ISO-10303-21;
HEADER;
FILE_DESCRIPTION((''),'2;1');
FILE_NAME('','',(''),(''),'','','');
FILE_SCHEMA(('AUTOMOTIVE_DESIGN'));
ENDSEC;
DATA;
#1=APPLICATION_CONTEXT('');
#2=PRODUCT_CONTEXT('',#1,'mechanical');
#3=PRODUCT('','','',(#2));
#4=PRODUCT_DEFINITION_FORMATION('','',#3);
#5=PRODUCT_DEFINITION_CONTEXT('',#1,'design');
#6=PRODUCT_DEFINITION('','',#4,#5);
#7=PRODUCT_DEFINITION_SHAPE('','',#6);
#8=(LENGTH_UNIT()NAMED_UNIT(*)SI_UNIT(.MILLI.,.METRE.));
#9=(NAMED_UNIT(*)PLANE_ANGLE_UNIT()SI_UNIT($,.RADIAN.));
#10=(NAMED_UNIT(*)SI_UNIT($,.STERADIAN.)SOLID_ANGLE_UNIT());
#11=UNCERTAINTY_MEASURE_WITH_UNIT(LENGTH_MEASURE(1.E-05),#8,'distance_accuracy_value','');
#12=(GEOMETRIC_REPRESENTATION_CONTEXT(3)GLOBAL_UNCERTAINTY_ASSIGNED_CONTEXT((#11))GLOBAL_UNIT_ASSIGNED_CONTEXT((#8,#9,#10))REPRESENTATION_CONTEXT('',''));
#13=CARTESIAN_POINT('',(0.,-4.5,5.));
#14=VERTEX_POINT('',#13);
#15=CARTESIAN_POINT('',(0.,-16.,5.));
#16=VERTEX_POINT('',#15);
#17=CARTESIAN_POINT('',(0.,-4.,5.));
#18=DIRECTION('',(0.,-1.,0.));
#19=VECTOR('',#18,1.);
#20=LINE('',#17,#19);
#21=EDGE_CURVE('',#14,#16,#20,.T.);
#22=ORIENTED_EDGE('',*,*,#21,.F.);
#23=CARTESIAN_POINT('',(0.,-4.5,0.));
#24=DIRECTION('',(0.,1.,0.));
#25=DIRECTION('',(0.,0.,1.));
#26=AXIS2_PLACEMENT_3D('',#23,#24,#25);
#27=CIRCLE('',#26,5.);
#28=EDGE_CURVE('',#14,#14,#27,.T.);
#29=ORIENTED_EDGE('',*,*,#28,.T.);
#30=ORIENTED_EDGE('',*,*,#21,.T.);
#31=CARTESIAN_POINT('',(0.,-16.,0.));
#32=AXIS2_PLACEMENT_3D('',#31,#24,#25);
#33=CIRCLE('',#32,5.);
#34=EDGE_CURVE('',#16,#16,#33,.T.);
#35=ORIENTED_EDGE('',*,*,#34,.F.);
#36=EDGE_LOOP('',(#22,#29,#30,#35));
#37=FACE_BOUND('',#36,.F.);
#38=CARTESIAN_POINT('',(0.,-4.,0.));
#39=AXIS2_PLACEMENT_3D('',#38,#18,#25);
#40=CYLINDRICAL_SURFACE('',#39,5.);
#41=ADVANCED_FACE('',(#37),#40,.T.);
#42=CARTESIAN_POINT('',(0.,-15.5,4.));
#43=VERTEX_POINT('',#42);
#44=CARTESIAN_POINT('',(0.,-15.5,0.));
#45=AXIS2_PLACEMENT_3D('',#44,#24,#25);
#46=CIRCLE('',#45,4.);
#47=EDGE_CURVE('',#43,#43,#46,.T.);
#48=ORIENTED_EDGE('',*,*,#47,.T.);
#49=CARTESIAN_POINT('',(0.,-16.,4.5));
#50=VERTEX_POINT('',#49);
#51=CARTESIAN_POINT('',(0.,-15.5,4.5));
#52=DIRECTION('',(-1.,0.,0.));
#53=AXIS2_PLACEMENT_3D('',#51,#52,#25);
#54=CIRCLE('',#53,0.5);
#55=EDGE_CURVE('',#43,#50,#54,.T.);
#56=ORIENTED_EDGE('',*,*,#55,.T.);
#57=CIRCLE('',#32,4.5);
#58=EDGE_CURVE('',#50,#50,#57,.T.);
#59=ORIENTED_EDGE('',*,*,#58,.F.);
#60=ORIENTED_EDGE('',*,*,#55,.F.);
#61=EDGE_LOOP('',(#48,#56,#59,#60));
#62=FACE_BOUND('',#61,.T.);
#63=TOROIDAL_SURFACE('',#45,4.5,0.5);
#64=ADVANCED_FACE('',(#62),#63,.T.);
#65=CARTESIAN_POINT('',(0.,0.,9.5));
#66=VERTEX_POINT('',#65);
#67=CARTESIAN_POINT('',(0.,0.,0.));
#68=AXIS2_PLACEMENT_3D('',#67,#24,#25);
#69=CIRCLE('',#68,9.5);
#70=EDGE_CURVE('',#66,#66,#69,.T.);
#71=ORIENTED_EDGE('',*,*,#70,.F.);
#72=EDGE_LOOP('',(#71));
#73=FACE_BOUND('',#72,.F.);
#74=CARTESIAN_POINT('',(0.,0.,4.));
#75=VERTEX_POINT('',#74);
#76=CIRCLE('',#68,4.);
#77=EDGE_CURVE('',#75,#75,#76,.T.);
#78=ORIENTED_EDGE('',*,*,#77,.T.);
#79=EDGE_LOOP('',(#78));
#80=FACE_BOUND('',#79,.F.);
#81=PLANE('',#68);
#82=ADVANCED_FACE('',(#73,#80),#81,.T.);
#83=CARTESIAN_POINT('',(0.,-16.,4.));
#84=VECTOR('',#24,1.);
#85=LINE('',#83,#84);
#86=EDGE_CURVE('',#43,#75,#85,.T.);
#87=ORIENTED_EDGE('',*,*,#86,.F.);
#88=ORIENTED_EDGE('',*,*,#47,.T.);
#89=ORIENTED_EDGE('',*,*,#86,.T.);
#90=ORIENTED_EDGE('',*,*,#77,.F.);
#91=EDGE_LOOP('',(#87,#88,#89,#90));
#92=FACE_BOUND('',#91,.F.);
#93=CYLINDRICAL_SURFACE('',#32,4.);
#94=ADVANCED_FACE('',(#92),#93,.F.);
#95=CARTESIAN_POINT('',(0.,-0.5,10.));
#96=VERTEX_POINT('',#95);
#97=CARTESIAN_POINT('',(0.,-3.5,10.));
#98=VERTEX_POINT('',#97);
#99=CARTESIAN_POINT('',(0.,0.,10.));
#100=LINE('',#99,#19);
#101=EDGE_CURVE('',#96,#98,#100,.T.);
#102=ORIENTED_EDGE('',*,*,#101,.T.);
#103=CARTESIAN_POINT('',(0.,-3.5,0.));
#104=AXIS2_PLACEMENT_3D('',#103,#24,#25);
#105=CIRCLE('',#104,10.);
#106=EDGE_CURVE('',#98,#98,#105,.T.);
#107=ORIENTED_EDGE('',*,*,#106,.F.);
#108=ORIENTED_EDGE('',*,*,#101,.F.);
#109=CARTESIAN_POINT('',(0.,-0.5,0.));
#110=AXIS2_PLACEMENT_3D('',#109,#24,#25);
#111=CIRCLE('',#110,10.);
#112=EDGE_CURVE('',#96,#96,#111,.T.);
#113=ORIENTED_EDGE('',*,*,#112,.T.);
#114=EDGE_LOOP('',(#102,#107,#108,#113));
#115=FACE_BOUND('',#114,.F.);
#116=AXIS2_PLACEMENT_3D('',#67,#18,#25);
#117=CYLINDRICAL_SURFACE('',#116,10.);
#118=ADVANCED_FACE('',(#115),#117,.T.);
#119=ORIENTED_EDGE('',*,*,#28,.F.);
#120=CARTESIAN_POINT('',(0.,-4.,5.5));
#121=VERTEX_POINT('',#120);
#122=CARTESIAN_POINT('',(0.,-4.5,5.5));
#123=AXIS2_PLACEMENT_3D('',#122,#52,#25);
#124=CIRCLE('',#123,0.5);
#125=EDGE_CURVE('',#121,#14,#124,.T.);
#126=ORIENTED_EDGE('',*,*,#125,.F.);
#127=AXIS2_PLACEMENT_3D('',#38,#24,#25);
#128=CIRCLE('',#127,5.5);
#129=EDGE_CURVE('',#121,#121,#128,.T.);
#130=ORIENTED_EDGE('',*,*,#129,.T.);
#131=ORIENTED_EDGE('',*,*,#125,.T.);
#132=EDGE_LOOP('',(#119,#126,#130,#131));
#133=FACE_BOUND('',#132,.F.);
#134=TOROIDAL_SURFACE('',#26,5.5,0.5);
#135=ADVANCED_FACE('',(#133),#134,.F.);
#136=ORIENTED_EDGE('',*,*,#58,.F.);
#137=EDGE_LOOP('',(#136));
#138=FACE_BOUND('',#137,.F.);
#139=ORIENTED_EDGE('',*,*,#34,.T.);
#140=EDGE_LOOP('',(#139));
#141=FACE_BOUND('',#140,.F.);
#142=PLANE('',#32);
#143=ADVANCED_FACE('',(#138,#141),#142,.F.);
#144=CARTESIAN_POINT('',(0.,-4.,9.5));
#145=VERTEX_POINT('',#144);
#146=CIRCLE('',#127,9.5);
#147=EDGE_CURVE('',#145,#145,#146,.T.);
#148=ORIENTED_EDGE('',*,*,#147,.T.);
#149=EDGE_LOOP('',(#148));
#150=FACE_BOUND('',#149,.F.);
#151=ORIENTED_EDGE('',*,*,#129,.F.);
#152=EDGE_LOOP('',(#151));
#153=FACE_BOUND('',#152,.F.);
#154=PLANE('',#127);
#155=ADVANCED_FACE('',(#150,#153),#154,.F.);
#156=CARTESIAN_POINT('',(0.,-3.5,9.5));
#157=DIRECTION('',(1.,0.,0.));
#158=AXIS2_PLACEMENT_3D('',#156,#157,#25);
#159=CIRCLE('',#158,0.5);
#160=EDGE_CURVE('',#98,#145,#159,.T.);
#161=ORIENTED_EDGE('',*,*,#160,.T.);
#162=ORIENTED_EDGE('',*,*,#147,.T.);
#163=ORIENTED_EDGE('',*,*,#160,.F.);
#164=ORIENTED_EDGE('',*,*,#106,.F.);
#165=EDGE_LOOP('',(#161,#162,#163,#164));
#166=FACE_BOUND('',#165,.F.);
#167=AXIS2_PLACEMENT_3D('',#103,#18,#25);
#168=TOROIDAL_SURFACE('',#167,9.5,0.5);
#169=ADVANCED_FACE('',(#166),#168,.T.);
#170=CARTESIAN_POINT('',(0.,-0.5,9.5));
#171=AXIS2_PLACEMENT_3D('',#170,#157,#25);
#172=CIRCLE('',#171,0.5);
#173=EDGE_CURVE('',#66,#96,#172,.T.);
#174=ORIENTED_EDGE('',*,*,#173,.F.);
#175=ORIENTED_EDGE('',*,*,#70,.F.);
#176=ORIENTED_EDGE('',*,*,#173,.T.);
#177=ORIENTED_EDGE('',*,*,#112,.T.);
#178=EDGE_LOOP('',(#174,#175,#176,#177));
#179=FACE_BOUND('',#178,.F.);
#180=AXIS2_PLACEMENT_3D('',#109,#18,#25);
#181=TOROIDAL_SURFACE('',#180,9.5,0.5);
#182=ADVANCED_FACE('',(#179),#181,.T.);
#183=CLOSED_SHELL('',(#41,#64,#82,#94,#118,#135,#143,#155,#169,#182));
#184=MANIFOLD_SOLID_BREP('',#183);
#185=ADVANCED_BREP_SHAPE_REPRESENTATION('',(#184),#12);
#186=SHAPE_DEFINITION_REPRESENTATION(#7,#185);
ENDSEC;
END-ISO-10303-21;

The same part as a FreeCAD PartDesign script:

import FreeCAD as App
import Part
import Sketcher
Q = App.Units.Quantity


def edges_at(feature, points):
    """Names of the edges that pass closest to the given points."""
    edges = feature.Shape.Edges
    near = lambda p: min(range(len(edges)), key=lambda i: edges[i].distToShape(Part.Vertex(*p))[0])
    return sorted({f"Edge{near(p) + 1}" for p in points})


def add_polygon(sketch, points):
    """Adds a closed chain of lines whose ends are joined by coincident constraints."""
    first, n = sketch.GeometryCount, len(points)
    for a, b in zip(points, points[1:] + points[:1]):
        sketch.addGeometry(Part.LineSegment(App.Vector(*a, 0), App.Vector(*b, 0)), False)
    for i in range(n):
        sketch.addConstraint(Sketcher.Constraint("Coincident", first + i, 2, first + (i + 1) % n, 1))

doc = App.newDocument("Part")
params = doc.addObject("Spreadsheet::Sheet", "Params")
for row, (alias, value) in enumerate([
    ("sketch1_width", "16 mm"),
    ("sketch1_width2", "4 mm"),
    ("sketch1_height", "6 mm"),
    ("sketch1_height2", "5 mm"),
    ("revolution_angle", "360 deg"),
    ("fillet_radius", "0.5 mm"),
], start=1):
    params.set(f"A{row}", alias)
    params.set(f"B{row}", "=" + value)
    params.setAlias(f"B{row}", alias)

body = doc.addObject("PartDesign::Body", "Body")

# Sketch on YZ plane
sketch1 = body.newObject("Sketcher::SketchObject", "Sketch")
sketch1.AttachmentSupport = (doc.getObject("YZ_Plane"), [""])
sketch1.MapMode = "FlatFace"
add_polygon(sketch1, [(-16, 4), (0, 4), (0, 10), (-4, 10), (-4, 5), (-16, 5)])  # lines 0-5
sketch1.addConstraint([
    Sketcher.Constraint("Horizontal", 0),
    Sketcher.Constraint("Vertical", 1),
    Sketcher.Constraint("Horizontal", 2),
    Sketcher.Constraint("Vertical", 3),
    Sketcher.Constraint("Horizontal", 4),
    Sketcher.Constraint("Vertical", 5),
    Sketcher.Constraint("PointOnObject", 0, 2, -2),
    Sketcher.Constraint("DistanceX", 0, 1, 0, 2, Q("16 mm")),
    Sketcher.Constraint("DistanceX", 2, 2, 2, 1, Q("4 mm")),
    Sketcher.Constraint("DistanceY", 1, 1, 1, 2, Q("6 mm")),
    Sketcher.Constraint("DistanceY", 3, 2, 3, 1, Q("5 mm")),
    Sketcher.Constraint("DistanceY", -1, 1, 0, 2, Q("4 mm")),
])
sketch1.setExpression("Constraints[13]", "Params.sketch1_width")
sketch1.setExpression("Constraints[14]", "Params.sketch1_width2")
sketch1.setExpression("Constraints[15]", "Params.sketch1_height")
sketch1.setExpression("Constraints[16]", "Params.sketch1_height2")
revolution = body.newObject("PartDesign::Revolution", "Revolution")
revolution.Profile = sketch1
revolution.ReferenceAxis = (sketch1, ["H_Axis"])
revolution.setExpression("Angle", "Params.revolution_angle")
doc.recompute()

fillet = body.newObject("PartDesign::Fillet", "Fillet")
fillet.Base = (revolution, edges_at(revolution, [
    (0, -16, -4),
    (0, -4, -5),
    (0, -4, -10),
    (0, 0, -10),
]))
fillet.setExpression("Radius", "Params.fillet_radius")

doc.recompute()
